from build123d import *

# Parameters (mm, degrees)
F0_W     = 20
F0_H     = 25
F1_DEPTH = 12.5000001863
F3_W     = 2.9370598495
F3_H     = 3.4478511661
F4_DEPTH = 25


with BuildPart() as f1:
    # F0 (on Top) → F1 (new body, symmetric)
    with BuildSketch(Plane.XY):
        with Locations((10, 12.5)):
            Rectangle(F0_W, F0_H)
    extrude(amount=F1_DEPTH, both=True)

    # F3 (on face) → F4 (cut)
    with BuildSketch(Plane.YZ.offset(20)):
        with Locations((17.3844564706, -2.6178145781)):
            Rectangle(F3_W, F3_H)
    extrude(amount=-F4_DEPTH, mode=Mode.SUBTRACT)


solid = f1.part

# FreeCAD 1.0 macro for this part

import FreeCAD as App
import Part
import Sketcher

V = App.Vector
Q = App.Units.Quantity

doc = App.newDocument("Part")
body = doc.addObject("PartDesign::Body", "Body")

# Sketch on XY plane
sketch1 = body.newObject("Sketcher::SketchObject", "Sketch")
sketch1.AttachmentSupport = (doc.getObject("XY_Plane"), [""])
sketch1.MapMode = "FlatFace"
sketch1.addGeometry([
    Part.LineSegment(V(0, 25, 0), V(0, 0, 0)),
    Part.LineSegment(V(0, 0, 0), V(20, 0, 0)),
    Part.LineSegment(V(20, 0, 0), V(20, 25, 0)),
    Part.LineSegment(V(20, 25, 0), V(0, 25, 0)),
], False)
sketch1.addConstraint([
    Sketcher.Constraint("Coincident", 0, 2, 1, 1),
    Sketcher.Constraint("Coincident", 1, 2, 2, 1),
    Sketcher.Constraint("Coincident", 2, 2, 3, 1),
    Sketcher.Constraint("Coincident", 3, 2, 0, 1),
    Sketcher.Constraint("Vertical", 0),
    Sketcher.Constraint("Horizontal", 1),
    Sketcher.Constraint("Vertical", 2),
    Sketcher.Constraint("Horizontal", 3),
    Sketcher.Constraint("Coincident", 0, 2, -1, 1),
    Sketcher.Constraint("DistanceX", 1, 1, 1, 2, Q("20 mm")),
    Sketcher.Constraint("DistanceY", 0, 2, 0, 1, Q("25 mm")),
])
pad1 = body.newObject("PartDesign::Pad", "Pad")
pad1.Profile = sketch1
pad1.Length = 25
pad1.Midplane = True

# Sketch on YZ plane
sketch2 = body.newObject("Sketcher::SketchObject", "Sketch001")
sketch2.AttachmentSupport = (doc.getObject("YZ_Plane"), [""])
sketch2.MapMode = "FlatFace"
sketch2.AttachmentOffset = App.Placement(V(0, 0, 20), App.Rotation())
sketch2.addGeometry([
    Part.LineSegment(V(15.9, -0.9, 0), V(15.9, -4.3, 0)),
    Part.LineSegment(V(15.9, -4.3, 0), V(18.9, -4.3, 0)),
    Part.LineSegment(V(18.9, -4.3, 0), V(18.9, -0.9, 0)),
    Part.LineSegment(V(18.9, -0.9, 0), V(15.9, -0.9, 0)),
], False)
sketch2.addConstraint([
    Sketcher.Constraint("Coincident", 0, 2, 1, 1),
    Sketcher.Constraint("Coincident", 1, 2, 2, 1),
    Sketcher.Constraint("Coincident", 2, 2, 3, 1),
    Sketcher.Constraint("Coincident", 3, 2, 0, 1),
    Sketcher.Constraint("Vertical", 0),
    Sketcher.Constraint("Horizontal", 1),
    Sketcher.Constraint("Vertical", 2),
    Sketcher.Constraint("Horizontal", 3),
    Sketcher.Constraint("DistanceX", 1, 1, 1, 2, Q("2.93706 mm")),
    Sketcher.Constraint("DistanceY", 0, 2, 0, 1, Q("3.447851 mm")),
    Sketcher.Constraint("DistanceY", 0, 2, -1, 1, Q("4.34174 mm")),
    Sketcher.Constraint("DistanceX", -1, 1, 0, 2, Q("15.915927 mm")),
])
pocket1 = body.newObject("PartDesign::Pocket", "Pocket")
pocket1.Profile = sketch2
pocket1.Length = 25

doc.recompute()
